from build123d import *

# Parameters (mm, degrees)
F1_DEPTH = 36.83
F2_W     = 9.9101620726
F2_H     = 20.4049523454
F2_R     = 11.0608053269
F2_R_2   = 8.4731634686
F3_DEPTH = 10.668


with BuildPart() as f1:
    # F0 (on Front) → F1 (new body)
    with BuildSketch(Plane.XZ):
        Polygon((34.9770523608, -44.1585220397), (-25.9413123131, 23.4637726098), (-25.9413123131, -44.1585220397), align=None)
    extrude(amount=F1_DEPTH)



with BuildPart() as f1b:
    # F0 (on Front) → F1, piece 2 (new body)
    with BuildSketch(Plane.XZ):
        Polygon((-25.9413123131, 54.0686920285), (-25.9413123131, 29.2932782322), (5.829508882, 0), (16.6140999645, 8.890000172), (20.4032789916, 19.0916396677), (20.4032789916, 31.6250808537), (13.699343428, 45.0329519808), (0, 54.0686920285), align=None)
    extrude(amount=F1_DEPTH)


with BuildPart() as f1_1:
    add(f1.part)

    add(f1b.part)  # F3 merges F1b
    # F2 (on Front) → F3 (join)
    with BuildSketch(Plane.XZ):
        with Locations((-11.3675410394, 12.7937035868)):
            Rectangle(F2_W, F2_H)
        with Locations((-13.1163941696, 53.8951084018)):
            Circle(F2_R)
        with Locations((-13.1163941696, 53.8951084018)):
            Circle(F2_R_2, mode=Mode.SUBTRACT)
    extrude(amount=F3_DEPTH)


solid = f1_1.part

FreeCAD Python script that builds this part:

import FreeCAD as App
import Part
import Sketcher
Q = App.Units.Quantity

doc = App.newDocument("Part")
body = doc.addObject("PartDesign::Body", "Body")

sketch1 = body.newObject("Sketcher::SketchObject", "Sketch")
sketch1.AttachmentSupport = (doc.getObject("XZ_Plane"), [""])
sketch1.MapMode = "FlatFace"
sketch1.addGeometry(Part.LineSegment(App.Vector(34.977052, -44.158522, 0), App.Vector(-25.941312, 23.463773, 0)), False)
sketch1.addGeometry(Part.LineSegment(App.Vector(-25.941312, 23.463773, 0), App.Vector(-25.941312, -44.158522, 0)), False)
sketch1.addGeometry(Part.LineSegment(App.Vector(-25.941312, -44.158522, 0), App.Vector(34.977052, -44.158522, 0)), False)
sketch1.addConstraint(Sketcher.Constraint("Coincident", 0, 2, 1, 1))
sketch1.addConstraint(Sketcher.Constraint("Coincident", 1, 2, 2, 1))
sketch1.addConstraint(Sketcher.Constraint("Coincident", 2, 2, 0, 1))
sketch1.addConstraint(Sketcher.Constraint("Vertical", 1))
sketch1.addConstraint(Sketcher.Constraint("Horizontal", 2))
sketch1.addConstraint(Sketcher.Constraint("DistanceX", 2, 1, 2, 2, 60.918365))
sketch1.addConstraint(Sketcher.Constraint("DistanceY", 1, 2, 1, 1, 67.622295))
sketch1.addConstraint(Sketcher.Constraint("DistanceX", 0, 2, -1, 1, 25.941312))
sketch1.addConstraint(Sketcher.Constraint("DistanceY", -1, 1, 0, 2, 23.463773))
pad1 = body.newObject("PartDesign::Pad", "Pad")
pad1.Profile = sketch1
pad1.Length = Q("1.45 in")
body2 = doc.addObject("PartDesign::Body", "Body001")

sketch2 = body2.newObject("Sketcher::SketchObject", "Sketch001")
sketch2.AttachmentSupport = (doc.getObject("XZ_Plane001"), [""])
sketch2.MapMode = "FlatFace"
sketch2.addGeometry(Part.LineSegment(App.Vector(-25.941312, 54.068692, 0), App.Vector(-25.941312, 29.293278, 0)), False)
sketch2.addGeometry(Part.LineSegment(App.Vector(-25.941312, 29.293278, 0), App.Vector(5.829509, 0, 0)), False)
sketch2.addGeometry(Part.LineSegment(App.Vector(5.829509, 0, 0), App.Vector(16.6141, 8.89, 0)), False)
sketch2.addGeometry(Part.LineSegment(App.Vector(16.6141, 8.89, 0), App.Vector(20.403279, 19.09164, 0)), False)
sketch2.addGeometry(Part.LineSegment(App.Vector(20.403279, 19.09164, 0), App.Vector(20.403279, 31.625081, 0)), False)
sketch2.addGeometry(Part.LineSegment(App.Vector(20.403279, 31.625081, 0), App.Vector(13.699343, 45.032952, 0)), False)
sketch2.addGeometry(Part.LineSegment(App.Vector(13.699343, 45.032952, 0), App.Vector(0, 54.068692, 0)), False)
sketch2.addGeometry(Part.LineSegment(App.Vector(0, 54.068692, 0), App.Vector(-25.941312, 54.068692, 0)), False)
sketch2.addConstraint(Sketcher.Constraint("Coincident", 0, 2, 1, 1))
sketch2.addConstraint(Sketcher.Constraint("Coincident", 1, 2, 2, 1))
sketch2.addConstraint(Sketcher.Constraint("Coincident", 2, 2, 3, 1))
sketch2.addConstraint(Sketcher.Constraint("Coincident", 3, 2, 4, 1))
sketch2.addConstraint(Sketcher.Constraint("Coincident", 4, 2, 5, 1))
sketch2.addConstraint(Sketcher.Constraint("Coincident", 5, 2, 6, 1))
sketch2.addConstraint(Sketcher.Constraint("Coincident", 6, 2, 7, 1))
sketch2.addConstraint(Sketcher.Constraint("Coincident", 7, 2, 0, 1))
sketch2.addConstraint(Sketcher.Constraint("Vertical", 0))
sketch2.addConstraint(Sketcher.Constraint("Vertical", 4))
sketch2.addConstraint(Sketcher.Constraint("Horizontal", 7))
sketch2.addConstraint(Sketcher.Constraint("PointOnObject", 1, 2, -1))
sketch2.addConstraint(Sketcher.Constraint("PointOnObject", 6, 2, -2))
sketch2.addConstraint(Sketcher.Constraint("DistanceY", -1, 1, 2, 2, Q("0.35 in")))
sketch2.addConstraint(Sketcher.Constraint("DistanceY", 4, 1, 4, 2, 12.533441))
sketch2.addConstraint(Sketcher.Constraint("DistanceX", -1, 1, 2, 2, 16.6141))
sketch2.addConstraint(Sketcher.Constraint("Distance", 2, 13.976391))
sketch2.addConstraint(Sketcher.Constraint("Distance", 6, 16.410869))
sketch2.addConstraint(Sketcher.Constraint("DistanceX", 7, 2, 7, 1, 25.941312))
sketch2.addConstraint(Sketcher.Constraint("DistanceY", 0, 2, 0, 1, 24.775414))
sketch2.addConstraint(Sketcher.Constraint("DistanceY", -1, 1, 0, 2, 29.293278))
sketch2.addConstraint(Sketcher.Constraint("DistanceX", -1, 1, 3, 2, 20.403279))
sketch2.addConstraint(Sketcher.Constraint("DistanceY", -1, 1, 3, 2, 19.09164))
sketch2.addConstraint(Sketcher.Constraint("DistanceY", -1, 1, 5, 2, 45.032952))
pad2 = body2.newObject("PartDesign::Pad", "Pad001")
pad2.Profile = sketch2
pad2.Length = Q("1.45 in")
body.AllowCompound = True
doc.recompute()

boolean = body.newObject("PartDesign::Boolean", "Boolean")
boolean.Type = "Fuse"
boolean.addObjects([body2])

sketch3 = body.newObject("Sketcher::SketchObject", "Sketch002")
sketch3.AttachmentSupport = (doc.getObject("XZ_Plane"), [""])
sketch3.MapMode = "FlatFace"
sketch3.addGeometry(Part.LineSegment(App.Vector(-16.322622, 22.99618, 0), App.Vector(-16.322622, 2.591227, 0)), False)
sketch3.addGeometry(Part.LineSegment(App.Vector(-16.322622, 2.591227, 0), App.Vector(-6.41246, 2.591227, 0)), False)
sketch3.addGeometry(Part.LineSegment(App.Vector(-6.41246, 2.591227, 0), App.Vector(-6.41246, 22.99618, 0)), False)
sketch3.addGeometry(Part.LineSegment(App.Vector(-6.41246, 22.99618, 0), App.Vector(-16.322622, 22.99618, 0)), False)
sketch3.addGeometry(Part.Circle(App.Vector(-13.116394, 53.895108, 0), App.Vector(0, 0, 1), 11.060805), False)
sketch3.addGeometry(Part.Circle(App.Vector(-13.116394, 53.895108, 0), App.Vector(0, 0, 1), 8.473163), False)
sketch3.addConstraint(Sketcher.Constraint("Coincident", 0, 2, 1, 1))
sketch3.addConstraint(Sketcher.Constraint("Coincident", 1, 2, 2, 1))
sketch3.addConstraint(Sketcher.Constraint("Coincident", 2, 2, 3, 1))
sketch3.addConstraint(Sketcher.Constraint("Coincident", 3, 2, 0, 1))
sketch3.addConstraint(Sketcher.Constraint("Vertical", 0))
sketch3.addConstraint(Sketcher.Constraint("Horizontal", 1))
sketch3.addConstraint(Sketcher.Constraint("Vertical", 2))
sketch3.addConstraint(Sketcher.Constraint("Horizontal", 3))
sketch3.addConstraint(Sketcher.Constraint("Coincident", 5, 3, 4, 3))
sketch3.addConstraint(Sketcher.Constraint("Diameter", 4, 22.121611))
sketch3.addConstraint(Sketcher.Constraint("Diameter", 5, 16.946327))
sketch3.addConstraint(Sketcher.Constraint("DistanceX", 1, 1, 1, 2, 9.910162))
sketch3.addConstraint(Sketcher.Constraint("DistanceY", 0, 2, 0, 1, 20.404952))
sketch3.addConstraint(Sketcher.Constraint("DistanceY", -1, 1, 4, 3, 53.895108))
sketch3.addConstraint(Sketcher.Constraint("DistanceX", 1, 2, -1, 1, 6.41246))
sketch3.addConstraint(Sketcher.Constraint("DistanceY", -1, 1, 2, 2, 22.99618))
sketch3.addConstraint(Sketcher.Constraint("DistanceX", 4, 3, -1, 1, 13.116394))
pad3 = body.newObject("PartDesign::Pad", "Pad002")
pad3.Profile = sketch3
pad3.Length = Q("0.42 in")

doc.recompute()
